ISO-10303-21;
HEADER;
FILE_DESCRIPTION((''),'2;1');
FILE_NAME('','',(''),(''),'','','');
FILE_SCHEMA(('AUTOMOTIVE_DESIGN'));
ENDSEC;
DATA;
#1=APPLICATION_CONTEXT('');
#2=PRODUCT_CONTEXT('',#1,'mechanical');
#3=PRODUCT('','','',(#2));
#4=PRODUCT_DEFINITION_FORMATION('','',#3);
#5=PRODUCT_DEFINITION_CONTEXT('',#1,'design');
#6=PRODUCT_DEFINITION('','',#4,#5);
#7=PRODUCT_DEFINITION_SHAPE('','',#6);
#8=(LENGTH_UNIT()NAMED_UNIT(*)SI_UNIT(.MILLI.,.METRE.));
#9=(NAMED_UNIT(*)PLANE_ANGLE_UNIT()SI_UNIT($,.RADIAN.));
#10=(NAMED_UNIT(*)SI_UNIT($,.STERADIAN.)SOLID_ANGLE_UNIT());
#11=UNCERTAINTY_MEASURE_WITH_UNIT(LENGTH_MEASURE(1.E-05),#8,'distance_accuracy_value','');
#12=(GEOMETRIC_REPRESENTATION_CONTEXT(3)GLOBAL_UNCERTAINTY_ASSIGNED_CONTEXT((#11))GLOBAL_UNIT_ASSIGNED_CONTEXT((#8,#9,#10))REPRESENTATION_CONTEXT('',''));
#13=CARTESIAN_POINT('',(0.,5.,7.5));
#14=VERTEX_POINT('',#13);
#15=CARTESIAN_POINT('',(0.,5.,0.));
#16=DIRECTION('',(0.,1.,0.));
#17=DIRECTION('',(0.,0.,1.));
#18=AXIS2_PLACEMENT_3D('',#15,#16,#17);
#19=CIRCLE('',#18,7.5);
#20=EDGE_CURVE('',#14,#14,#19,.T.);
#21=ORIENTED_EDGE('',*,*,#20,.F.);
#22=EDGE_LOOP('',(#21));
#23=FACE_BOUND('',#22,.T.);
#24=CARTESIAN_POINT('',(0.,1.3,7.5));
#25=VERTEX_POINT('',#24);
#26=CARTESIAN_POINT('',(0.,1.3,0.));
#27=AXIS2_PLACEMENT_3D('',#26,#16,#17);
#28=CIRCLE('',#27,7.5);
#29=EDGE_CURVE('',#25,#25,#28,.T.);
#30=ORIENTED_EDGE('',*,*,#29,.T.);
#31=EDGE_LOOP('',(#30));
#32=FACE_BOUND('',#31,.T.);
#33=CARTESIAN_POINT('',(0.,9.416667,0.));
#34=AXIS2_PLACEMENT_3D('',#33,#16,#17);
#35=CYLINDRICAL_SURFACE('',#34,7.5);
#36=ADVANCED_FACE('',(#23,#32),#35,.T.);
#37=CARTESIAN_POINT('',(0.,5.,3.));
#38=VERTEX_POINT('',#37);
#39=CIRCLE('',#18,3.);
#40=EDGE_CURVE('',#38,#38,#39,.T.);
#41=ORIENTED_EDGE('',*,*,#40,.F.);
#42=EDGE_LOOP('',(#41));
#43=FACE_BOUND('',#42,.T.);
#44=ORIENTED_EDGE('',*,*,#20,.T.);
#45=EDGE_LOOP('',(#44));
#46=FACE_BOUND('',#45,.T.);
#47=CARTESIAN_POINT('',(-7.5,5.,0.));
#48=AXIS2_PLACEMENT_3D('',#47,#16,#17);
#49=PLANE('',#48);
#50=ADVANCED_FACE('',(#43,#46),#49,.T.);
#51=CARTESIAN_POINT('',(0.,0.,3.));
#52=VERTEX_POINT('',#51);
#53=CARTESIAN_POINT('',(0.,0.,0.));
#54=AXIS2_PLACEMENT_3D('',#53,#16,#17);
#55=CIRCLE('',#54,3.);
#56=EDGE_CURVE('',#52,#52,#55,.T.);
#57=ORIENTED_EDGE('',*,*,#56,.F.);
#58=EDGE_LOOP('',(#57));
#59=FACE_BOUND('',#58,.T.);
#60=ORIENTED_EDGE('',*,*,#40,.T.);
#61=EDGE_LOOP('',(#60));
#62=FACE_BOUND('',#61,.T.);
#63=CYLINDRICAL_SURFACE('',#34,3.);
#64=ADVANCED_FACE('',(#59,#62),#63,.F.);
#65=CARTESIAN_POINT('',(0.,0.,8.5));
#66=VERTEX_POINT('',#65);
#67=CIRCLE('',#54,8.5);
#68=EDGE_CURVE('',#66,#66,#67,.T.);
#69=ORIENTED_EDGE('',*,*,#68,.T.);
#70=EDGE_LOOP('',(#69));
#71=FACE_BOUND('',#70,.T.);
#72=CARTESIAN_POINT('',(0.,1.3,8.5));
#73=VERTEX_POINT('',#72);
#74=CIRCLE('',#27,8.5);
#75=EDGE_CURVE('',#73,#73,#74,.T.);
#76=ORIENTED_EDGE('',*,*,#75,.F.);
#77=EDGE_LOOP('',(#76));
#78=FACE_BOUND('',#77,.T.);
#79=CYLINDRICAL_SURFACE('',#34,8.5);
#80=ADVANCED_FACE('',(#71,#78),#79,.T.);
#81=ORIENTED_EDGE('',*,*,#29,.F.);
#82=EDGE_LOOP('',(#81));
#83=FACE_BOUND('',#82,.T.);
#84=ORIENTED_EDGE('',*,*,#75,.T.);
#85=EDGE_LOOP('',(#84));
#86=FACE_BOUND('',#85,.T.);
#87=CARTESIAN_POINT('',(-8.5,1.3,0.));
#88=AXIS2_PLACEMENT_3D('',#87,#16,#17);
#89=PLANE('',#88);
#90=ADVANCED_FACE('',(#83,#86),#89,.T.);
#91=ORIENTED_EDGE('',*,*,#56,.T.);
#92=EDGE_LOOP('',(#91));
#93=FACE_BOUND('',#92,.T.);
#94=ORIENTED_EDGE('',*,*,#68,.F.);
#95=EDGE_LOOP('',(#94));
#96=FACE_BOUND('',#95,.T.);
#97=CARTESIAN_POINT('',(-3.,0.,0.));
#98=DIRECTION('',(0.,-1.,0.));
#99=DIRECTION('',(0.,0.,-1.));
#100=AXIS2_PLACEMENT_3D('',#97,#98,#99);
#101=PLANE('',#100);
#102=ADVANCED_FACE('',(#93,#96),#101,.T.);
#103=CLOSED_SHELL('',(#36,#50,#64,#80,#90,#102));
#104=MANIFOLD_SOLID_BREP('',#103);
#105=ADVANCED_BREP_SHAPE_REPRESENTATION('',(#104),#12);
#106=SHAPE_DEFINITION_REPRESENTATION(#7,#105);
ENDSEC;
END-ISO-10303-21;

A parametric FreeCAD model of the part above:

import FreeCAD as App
import Part
import Sketcher

V = App.Vector


def add_polygon(sketch, points):
    """Adds a closed chain of lines whose ends are joined by coincident constraints."""
    first, n = sketch.GeometryCount, len(points)
    for a, b in zip(points, points[1:] + points[:1]):
        sketch.addGeometry(Part.LineSegment(App.Vector(*a, 0), App.Vector(*b, 0)), False)
    for i in range(n):
        sketch.addConstraint(Sketcher.Constraint("Coincident", first + i, 2, first + (i + 1) % n, 1))

doc = App.newDocument("Part")
body = doc.addObject("PartDesign::Body", "Body")

# Sketch on XY plane
sketch1 = doc.addObject("Sketcher::SketchObject", "Sketch")
body.addObject(sketch1)
sketch1.AttachmentSupport = (doc.XY_Plane, [""])
sketch1.MapMode = "FlatFace"
add_polygon(sketch1, [(-8.5, 0), (-3, 0), (-3, 5), (-7.5, 5), (-7.5, 1.3), (-8.5, 1.3)])  # lines 0-5
sketch1.addConstraint([
    Sketcher.Constraint("Horizontal", 0),
    Sketcher.Constraint("Vertical", 1),
    Sketcher.Constraint("Horizontal", 2),
    Sketcher.Constraint("Vertical", 3),
    Sketcher.Constraint("Horizontal", 4),
    Sketcher.Constraint("Vertical", 5),
    Sketcher.Constraint("PointOnObject", 0, 2, -1),
    Sketcher.Constraint("DistanceX", 4, 2, 4, 1, 1.0),
    Sketcher.Constraint("DistanceY", 1, 1, 1, 2, 5.0),
    Sketcher.Constraint("DistanceX", 0, 1, 0, 2, 5.5),
    Sketcher.Constraint("DistanceY", 3, 2, 3, 1, 3.7),
    Sketcher.Constraint("DistanceX", 0, 2, -1, 1, 3.0),
])
revolution = doc.addObject("PartDesign::Revolution", "Revolution")
body.addObject(revolution)
revolution.Profile = sketch1
revolution.ReferenceAxis = (sketch1, ["V_Axis"])
revolution.Angle = 360

doc.recompute()
